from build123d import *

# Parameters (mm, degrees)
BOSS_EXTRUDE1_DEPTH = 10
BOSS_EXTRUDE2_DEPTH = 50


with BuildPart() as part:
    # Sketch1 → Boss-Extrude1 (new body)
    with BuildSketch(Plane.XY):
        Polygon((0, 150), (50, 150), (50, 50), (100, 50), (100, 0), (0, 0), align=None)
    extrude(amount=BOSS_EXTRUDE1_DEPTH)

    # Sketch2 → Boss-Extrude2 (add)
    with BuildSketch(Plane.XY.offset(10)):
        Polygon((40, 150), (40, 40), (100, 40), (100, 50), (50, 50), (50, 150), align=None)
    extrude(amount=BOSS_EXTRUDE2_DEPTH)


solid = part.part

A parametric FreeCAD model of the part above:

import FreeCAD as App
import Part
import Sketcher

V = App.Vector

doc = App.newDocument("Part")
body = doc.addObject("PartDesign::Body", "Body")

sketch1 = body.newObject("Sketcher::SketchObject", "Sketch")
sketch1.AttachmentSupport = (doc.getObject("XY_Plane"), [""])
sketch1.MapMode = "FlatFace"
sketch1.addGeometry([
    Part.LineSegment(V(50, 150, 0), V(0, 150, 0)),
    Part.LineSegment(V(0, 150, 0), V(0, 0, 0)),
    Part.LineSegment(V(0, 0, 0), V(100, 0, 0)),
    Part.LineSegment(V(100, 0, 0), V(100, 50, 0)),
    Part.LineSegment(V(100, 50, 0), V(50, 50, 0)),
    Part.LineSegment(V(50, 50, 0), V(50, 150, 0)),
], False)
sketch1.addConstraint([
    Sketcher.Constraint("Coincident", 0, 2, 1, 1),
    Sketcher.Constraint("Coincident", 1, 2, 2, 1),
    Sketcher.Constraint("Coincident", 2, 2, 3, 1),
    Sketcher.Constraint("Coincident", 3, 2, 4, 1),
    Sketcher.Constraint("Coincident", 4, 2, 5, 1),
    Sketcher.Constraint("Coincident", 5, 2, 0, 1),
    Sketcher.Constraint("Horizontal", 0),
    Sketcher.Constraint("Vertical", 1),
    Sketcher.Constraint("Horizontal", 2),
    Sketcher.Constraint("Vertical", 3),
    Sketcher.Constraint("Horizontal", 4),
    Sketcher.Constraint("Vertical", 5),
    Sketcher.Constraint("Coincident", 1, 2, -1, 1),
    Sketcher.Constraint("Equal", 0, 4),
    Sketcher.Constraint("Equal", 4, 3),
    Sketcher.Constraint("Equal", 2, 5),
    Sketcher.Constraint("DistanceX", 0, 2, 0, 1, 50.0),
])
pad1 = body.newObject("PartDesign::Pad", "Pad")
pad1.Profile = sketch1
pad1.Length = 10

sketch2 = body.newObject("Sketcher::SketchObject", "Sketch001")
sketch2.AttachmentSupport = (doc.getObject("XY_Plane"), [""])
sketch2.MapMode = "FlatFace"
sketch2.AttachmentOffset = App.Placement(V(0, 0, 10), App.Rotation())
sketch2.addGeometry([
    Part.LineSegment(V(40, 150, 0), V(40, 40, 0)),
    Part.LineSegment(V(40, 40, 0), V(100, 40, 0)),
    Part.LineSegment(V(100, 40, 0), V(100, 50, 0)),
    Part.LineSegment(V(100, 50, 0), V(50, 50, 0)),
    Part.LineSegment(V(50, 50, 0), V(50, 150, 0)),
    Part.LineSegment(V(50, 150, 0), V(40, 150, 0)),
], False)
sketch2.addConstraint([
    Sketcher.Constraint("Coincident", 0, 2, 1, 1),
    Sketcher.Constraint("Coincident", 1, 2, 2, 1),
    Sketcher.Constraint("Coincident", 2, 2, 3, 1),
    Sketcher.Constraint("Coincident", 3, 2, 4, 1),
    Sketcher.Constraint("Coincident", 4, 2, 5, 1),
    Sketcher.Constraint("Coincident", 5, 2, 0, 1),
    Sketcher.Constraint("Vertical", 0),
    Sketcher.Constraint("Horizontal", 1),
    Sketcher.Constraint("Vertical", 2),
    Sketcher.Constraint("Horizontal", 3),
    Sketcher.Constraint("Vertical", 4),
    Sketcher.Constraint("Horizontal", 5),
    Sketcher.Constraint("Equal", 5, 2),
    Sketcher.Constraint("DistanceX", 1, 1, 1, 2, 60.0),
    Sketcher.Constraint("DistanceX", 3, 2, 3, 1, 50.0),
    Sketcher.Constraint("DistanceY", 0, 2, 0, 1, 110.0),
    Sketcher.Constraint("DistanceX", -1, 1, 0, 2, 40.0),
    Sketcher.Constraint("DistanceY", -1, 1, 0, 2, 40.0),
])
pad2 = body.newObject("PartDesign::Pad", "Pad001")
pad2.Profile = sketch2
pad2.Length = 50

doc.recompute()
